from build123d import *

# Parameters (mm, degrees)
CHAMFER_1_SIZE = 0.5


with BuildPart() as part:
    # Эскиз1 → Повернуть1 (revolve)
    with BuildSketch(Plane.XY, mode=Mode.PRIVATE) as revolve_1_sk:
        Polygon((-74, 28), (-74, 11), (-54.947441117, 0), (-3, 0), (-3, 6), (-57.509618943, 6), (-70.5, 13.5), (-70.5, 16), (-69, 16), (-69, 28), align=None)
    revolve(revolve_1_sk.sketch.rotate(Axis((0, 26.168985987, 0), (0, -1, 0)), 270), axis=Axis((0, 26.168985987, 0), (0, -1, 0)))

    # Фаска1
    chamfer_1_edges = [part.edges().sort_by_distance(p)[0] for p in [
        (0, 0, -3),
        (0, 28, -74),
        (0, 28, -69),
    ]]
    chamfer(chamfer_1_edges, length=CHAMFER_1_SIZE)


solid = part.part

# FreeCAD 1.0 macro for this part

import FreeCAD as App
import Part
import Sketcher
Q = App.Units.Quantity


def edges_at(feature, points):
    """Names of the edges that pass closest to the given points."""
    edges = feature.Shape.Edges
    near = lambda p: min(range(len(edges)), key=lambda i: edges[i].distToShape(Part.Vertex(*p))[0])
    return sorted({f"Edge{near(p) + 1}" for p in points})

doc = App.newDocument("Part")
params = doc.addObject("Spreadsheet::Sheet", "Params")
for row, (alias, value) in enumerate([
    ("sketch1_width", "5 mm"),
    ("sketch1_height", "17 mm"),
    ("sketch1_height2", "6 mm"),
    ("sketch1_height3", "12 mm"),
    ("sketch1_length", "22 mm"),
    ("revolution_angle", "360 deg"),
    ("chamfer_size", "0.5 mm"),
], start=1):
    params.set(f"A{row}", alias)
    params.set(f"B{row}", "=" + value)
    params.setAlias(f"B{row}", alias)

body = doc.addObject("PartDesign::Body", "Body")

# Sketch on XY plane
sketch1 = body.newObject("Sketcher::SketchObject", "Sketch")
sketch1.AttachmentSupport = (doc.getObject("XY_Plane"), [""])
sketch1.MapMode = "FlatFace"
sketch1.addGeometry(Part.LineSegment(App.Vector(-74, 28, 0), App.Vector(-74, 11, 0)), False)
sketch1.addGeometry(Part.LineSegment(App.Vector(-74, 11, 0), App.Vector(-54.9, 0, 0)), False)
sketch1.addGeometry(Part.LineSegment(App.Vector(-54.9, 0, 0), App.Vector(-3, 0, 0)), False)
sketch1.addGeometry(Part.LineSegment(App.Vector(-3, 0, 0), App.Vector(-3, 6, 0)), False)
sketch1.addGeometry(Part.LineSegment(App.Vector(-3, 6, 0), App.Vector(-57.5, 6, 0)), False)
sketch1.addGeometry(Part.LineSegment(App.Vector(-57.5, 6, 0), App.Vector(-70.5, 13.5, 0)), False)
sketch1.addGeometry(Part.LineSegment(App.Vector(-70.5, 13.5, 0), App.Vector(-70.5, 16, 0)), False)
sketch1.addGeometry(Part.LineSegment(App.Vector(-70.5, 16, 0), App.Vector(-69, 16, 0)), False)
sketch1.addGeometry(Part.LineSegment(App.Vector(-69, 16, 0), App.Vector(-69, 28, 0)), False)
sketch1.addGeometry(Part.LineSegment(App.Vector(-69, 28, 0), App.Vector(-74, 28, 0)), False)
sketch1.addConstraint(Sketcher.Constraint("Coincident", 0, 2, 1, 1))
sketch1.addConstraint(Sketcher.Constraint("Coincident", 1, 2, 2, 1))
sketch1.addConstraint(Sketcher.Constraint("Coincident", 2, 2, 3, 1))
sketch1.addConstraint(Sketcher.Constraint("Coincident", 3, 2, 4, 1))
sketch1.addConstraint(Sketcher.Constraint("Coincident", 4, 2, 5, 1))
sketch1.addConstraint(Sketcher.Constraint("Coincident", 5, 2, 6, 1))
sketch1.addConstraint(Sketcher.Constraint("Coincident", 6, 2, 7, 1))
sketch1.addConstraint(Sketcher.Constraint("Coincident", 7, 2, 8, 1))
sketch1.addConstraint(Sketcher.Constraint("Coincident", 8, 2, 9, 1))
sketch1.addConstraint(Sketcher.Constraint("Coincident", 9, 2, 0, 1))
sketch1.addConstraint(Sketcher.Constraint("Vertical", 0))
sketch1.addConstraint(Sketcher.Constraint("Horizontal", 2))
sketch1.addConstraint(Sketcher.Constraint("Vertical", 3))
sketch1.addConstraint(Sketcher.Constraint("Horizontal", 4))
sketch1.addConstraint(Sketcher.Constraint("Vertical", 6))
sketch1.addConstraint(Sketcher.Constraint("Horizontal", 7))
sketch1.addConstraint(Sketcher.Constraint("Vertical", 8))
sketch1.addConstraint(Sketcher.Constraint("Horizontal", 9))
sketch1.addConstraint(Sketcher.Constraint("PointOnObject", 1, 2, -1))
sketch1.addConstraint(Sketcher.Constraint("Parallel", 1, 5))
sketch1.addConstraint(Sketcher.Constraint("DistanceX", 9, 2, 9, 1, 5.0))
sketch1.addConstraint(Sketcher.Constraint("DistanceY", 0, 2, 0, 1, 17.0))
sketch1.addConstraint(Sketcher.Constraint("DistanceY", 3, 1, 3, 2, 6.0))
sketch1.addConstraint(Sketcher.Constraint("DistanceY", 8, 1, 8, 2, 12.0))
sketch1.addConstraint(Sketcher.Constraint("Angle", 1, Q("-30 deg")))
sketch1.addConstraint(Sketcher.Constraint("Distance", 1, 22.0))
sketch1.addConstraint(Sketcher.Constraint("Distance", 5, 15.0))
sketch1.addConstraint(Sketcher.Constraint("DistanceX", 7, 1, 7, 2, 1.5))
sketch1.addConstraint(Sketcher.Constraint("DistanceX", 0, 2, -1, 1, 74.0))
sketch1.addConstraint(Sketcher.Constraint("DistanceX", 2, 2, -1, 1, 3.0))
sketch1.setExpression("Constraints[20]", "Params.sketch1_width")
sketch1.setExpression("Constraints[21]", "Params.sketch1_height")
sketch1.setExpression("Constraints[22]", "Params.sketch1_height2")
sketch1.setExpression("Constraints[23]", "Params.sketch1_height3")
sketch1.setExpression("Constraints[25]", "Params.sketch1_length")
revolution = body.newObject("PartDesign::Revolution", "Revolution")
revolution.Profile = sketch1
revolution.ReferenceAxis = (sketch1, ["V_Axis"])
revolution.setExpression("Angle", "Params.revolution_angle")
doc.recompute()

chamfer = body.newObject("PartDesign::Chamfer", "Chamfer")
chamfer.Base = (revolution, edges_at(revolution, [(0, 0, -3), (0, 28, -74), (0, 28, -69)]))
chamfer.setExpression("Size", "Params.chamfer_size")

doc.recompute()
